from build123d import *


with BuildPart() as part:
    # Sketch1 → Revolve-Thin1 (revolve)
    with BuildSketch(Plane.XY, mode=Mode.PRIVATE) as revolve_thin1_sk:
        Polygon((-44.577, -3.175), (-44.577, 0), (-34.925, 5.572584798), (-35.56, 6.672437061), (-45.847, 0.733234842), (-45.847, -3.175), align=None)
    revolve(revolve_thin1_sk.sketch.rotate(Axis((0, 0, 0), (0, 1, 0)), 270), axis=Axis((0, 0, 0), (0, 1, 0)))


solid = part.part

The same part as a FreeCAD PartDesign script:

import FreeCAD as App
import Part
import Sketcher
Q = App.Units.Quantity


def add_polygon(sketch, points):
    """Adds a closed chain of lines whose ends are joined by coincident constraints."""
    first, n = sketch.GeometryCount, len(points)
    for a, b in zip(points, points[1:] + points[:1]):
        sketch.addGeometry(Part.LineSegment(App.Vector(*a, 0), App.Vector(*b, 0)), False)
    for i in range(n):
        sketch.addConstraint(Sketcher.Constraint("Coincident", first + i, 2, first + (i + 1) % n, 1))

doc = App.newDocument("Part")
body = doc.addObject("PartDesign::Body", "Body")

# Sketch on XY plane
sketch1 = body.newObject("Sketcher::SketchObject", "Sketch")
sketch1.AttachmentSupport = (doc.getObject("XY_Plane"), [""])
sketch1.MapMode = "FlatFace"
add_polygon(sketch1, [(-44.577, -3.175), (-44.577, 0), (-34.925, 5.572585), (-35.56, 6.672437), (-45.847, 0.733235), (-45.847, -3.175)])  # lines 0-5
sketch1.addConstraint([
    Sketcher.Constraint("Vertical", 0),
    Sketcher.Constraint("Vertical", 4),
    Sketcher.Constraint("Horizontal", 5),
    Sketcher.Constraint("PointOnObject", 0, 2, -1),
    Sketcher.Constraint("Perpendicular", 1, 2),
    Sketcher.Constraint("Perpendicular", 2, 3),
    Sketcher.Constraint("Angle", 1, Q("30 deg")),
    Sketcher.Constraint("DistanceX", 5, 1, 5, 2, Q("0.05 in")),
    Sketcher.Constraint("DistanceX", 2, 2, -1, 1, Q("1.4 in")),
    Sketcher.Constraint("Distance", 2, Q("0.05 in")),
    Sketcher.Constraint("DistanceY", 0, 1, 0, 2, Q("0.125 in")),
    Sketcher.Constraint("DistanceX", 0, 2, 1, 2, Q("0.38 in")),
])
revolution = body.newObject("PartDesign::Revolution", "Revolution")
revolution.Profile = sketch1
revolution.ReferenceAxis = (sketch1, ["V_Axis"])
revolution.Angle = 360

doc.recompute()
